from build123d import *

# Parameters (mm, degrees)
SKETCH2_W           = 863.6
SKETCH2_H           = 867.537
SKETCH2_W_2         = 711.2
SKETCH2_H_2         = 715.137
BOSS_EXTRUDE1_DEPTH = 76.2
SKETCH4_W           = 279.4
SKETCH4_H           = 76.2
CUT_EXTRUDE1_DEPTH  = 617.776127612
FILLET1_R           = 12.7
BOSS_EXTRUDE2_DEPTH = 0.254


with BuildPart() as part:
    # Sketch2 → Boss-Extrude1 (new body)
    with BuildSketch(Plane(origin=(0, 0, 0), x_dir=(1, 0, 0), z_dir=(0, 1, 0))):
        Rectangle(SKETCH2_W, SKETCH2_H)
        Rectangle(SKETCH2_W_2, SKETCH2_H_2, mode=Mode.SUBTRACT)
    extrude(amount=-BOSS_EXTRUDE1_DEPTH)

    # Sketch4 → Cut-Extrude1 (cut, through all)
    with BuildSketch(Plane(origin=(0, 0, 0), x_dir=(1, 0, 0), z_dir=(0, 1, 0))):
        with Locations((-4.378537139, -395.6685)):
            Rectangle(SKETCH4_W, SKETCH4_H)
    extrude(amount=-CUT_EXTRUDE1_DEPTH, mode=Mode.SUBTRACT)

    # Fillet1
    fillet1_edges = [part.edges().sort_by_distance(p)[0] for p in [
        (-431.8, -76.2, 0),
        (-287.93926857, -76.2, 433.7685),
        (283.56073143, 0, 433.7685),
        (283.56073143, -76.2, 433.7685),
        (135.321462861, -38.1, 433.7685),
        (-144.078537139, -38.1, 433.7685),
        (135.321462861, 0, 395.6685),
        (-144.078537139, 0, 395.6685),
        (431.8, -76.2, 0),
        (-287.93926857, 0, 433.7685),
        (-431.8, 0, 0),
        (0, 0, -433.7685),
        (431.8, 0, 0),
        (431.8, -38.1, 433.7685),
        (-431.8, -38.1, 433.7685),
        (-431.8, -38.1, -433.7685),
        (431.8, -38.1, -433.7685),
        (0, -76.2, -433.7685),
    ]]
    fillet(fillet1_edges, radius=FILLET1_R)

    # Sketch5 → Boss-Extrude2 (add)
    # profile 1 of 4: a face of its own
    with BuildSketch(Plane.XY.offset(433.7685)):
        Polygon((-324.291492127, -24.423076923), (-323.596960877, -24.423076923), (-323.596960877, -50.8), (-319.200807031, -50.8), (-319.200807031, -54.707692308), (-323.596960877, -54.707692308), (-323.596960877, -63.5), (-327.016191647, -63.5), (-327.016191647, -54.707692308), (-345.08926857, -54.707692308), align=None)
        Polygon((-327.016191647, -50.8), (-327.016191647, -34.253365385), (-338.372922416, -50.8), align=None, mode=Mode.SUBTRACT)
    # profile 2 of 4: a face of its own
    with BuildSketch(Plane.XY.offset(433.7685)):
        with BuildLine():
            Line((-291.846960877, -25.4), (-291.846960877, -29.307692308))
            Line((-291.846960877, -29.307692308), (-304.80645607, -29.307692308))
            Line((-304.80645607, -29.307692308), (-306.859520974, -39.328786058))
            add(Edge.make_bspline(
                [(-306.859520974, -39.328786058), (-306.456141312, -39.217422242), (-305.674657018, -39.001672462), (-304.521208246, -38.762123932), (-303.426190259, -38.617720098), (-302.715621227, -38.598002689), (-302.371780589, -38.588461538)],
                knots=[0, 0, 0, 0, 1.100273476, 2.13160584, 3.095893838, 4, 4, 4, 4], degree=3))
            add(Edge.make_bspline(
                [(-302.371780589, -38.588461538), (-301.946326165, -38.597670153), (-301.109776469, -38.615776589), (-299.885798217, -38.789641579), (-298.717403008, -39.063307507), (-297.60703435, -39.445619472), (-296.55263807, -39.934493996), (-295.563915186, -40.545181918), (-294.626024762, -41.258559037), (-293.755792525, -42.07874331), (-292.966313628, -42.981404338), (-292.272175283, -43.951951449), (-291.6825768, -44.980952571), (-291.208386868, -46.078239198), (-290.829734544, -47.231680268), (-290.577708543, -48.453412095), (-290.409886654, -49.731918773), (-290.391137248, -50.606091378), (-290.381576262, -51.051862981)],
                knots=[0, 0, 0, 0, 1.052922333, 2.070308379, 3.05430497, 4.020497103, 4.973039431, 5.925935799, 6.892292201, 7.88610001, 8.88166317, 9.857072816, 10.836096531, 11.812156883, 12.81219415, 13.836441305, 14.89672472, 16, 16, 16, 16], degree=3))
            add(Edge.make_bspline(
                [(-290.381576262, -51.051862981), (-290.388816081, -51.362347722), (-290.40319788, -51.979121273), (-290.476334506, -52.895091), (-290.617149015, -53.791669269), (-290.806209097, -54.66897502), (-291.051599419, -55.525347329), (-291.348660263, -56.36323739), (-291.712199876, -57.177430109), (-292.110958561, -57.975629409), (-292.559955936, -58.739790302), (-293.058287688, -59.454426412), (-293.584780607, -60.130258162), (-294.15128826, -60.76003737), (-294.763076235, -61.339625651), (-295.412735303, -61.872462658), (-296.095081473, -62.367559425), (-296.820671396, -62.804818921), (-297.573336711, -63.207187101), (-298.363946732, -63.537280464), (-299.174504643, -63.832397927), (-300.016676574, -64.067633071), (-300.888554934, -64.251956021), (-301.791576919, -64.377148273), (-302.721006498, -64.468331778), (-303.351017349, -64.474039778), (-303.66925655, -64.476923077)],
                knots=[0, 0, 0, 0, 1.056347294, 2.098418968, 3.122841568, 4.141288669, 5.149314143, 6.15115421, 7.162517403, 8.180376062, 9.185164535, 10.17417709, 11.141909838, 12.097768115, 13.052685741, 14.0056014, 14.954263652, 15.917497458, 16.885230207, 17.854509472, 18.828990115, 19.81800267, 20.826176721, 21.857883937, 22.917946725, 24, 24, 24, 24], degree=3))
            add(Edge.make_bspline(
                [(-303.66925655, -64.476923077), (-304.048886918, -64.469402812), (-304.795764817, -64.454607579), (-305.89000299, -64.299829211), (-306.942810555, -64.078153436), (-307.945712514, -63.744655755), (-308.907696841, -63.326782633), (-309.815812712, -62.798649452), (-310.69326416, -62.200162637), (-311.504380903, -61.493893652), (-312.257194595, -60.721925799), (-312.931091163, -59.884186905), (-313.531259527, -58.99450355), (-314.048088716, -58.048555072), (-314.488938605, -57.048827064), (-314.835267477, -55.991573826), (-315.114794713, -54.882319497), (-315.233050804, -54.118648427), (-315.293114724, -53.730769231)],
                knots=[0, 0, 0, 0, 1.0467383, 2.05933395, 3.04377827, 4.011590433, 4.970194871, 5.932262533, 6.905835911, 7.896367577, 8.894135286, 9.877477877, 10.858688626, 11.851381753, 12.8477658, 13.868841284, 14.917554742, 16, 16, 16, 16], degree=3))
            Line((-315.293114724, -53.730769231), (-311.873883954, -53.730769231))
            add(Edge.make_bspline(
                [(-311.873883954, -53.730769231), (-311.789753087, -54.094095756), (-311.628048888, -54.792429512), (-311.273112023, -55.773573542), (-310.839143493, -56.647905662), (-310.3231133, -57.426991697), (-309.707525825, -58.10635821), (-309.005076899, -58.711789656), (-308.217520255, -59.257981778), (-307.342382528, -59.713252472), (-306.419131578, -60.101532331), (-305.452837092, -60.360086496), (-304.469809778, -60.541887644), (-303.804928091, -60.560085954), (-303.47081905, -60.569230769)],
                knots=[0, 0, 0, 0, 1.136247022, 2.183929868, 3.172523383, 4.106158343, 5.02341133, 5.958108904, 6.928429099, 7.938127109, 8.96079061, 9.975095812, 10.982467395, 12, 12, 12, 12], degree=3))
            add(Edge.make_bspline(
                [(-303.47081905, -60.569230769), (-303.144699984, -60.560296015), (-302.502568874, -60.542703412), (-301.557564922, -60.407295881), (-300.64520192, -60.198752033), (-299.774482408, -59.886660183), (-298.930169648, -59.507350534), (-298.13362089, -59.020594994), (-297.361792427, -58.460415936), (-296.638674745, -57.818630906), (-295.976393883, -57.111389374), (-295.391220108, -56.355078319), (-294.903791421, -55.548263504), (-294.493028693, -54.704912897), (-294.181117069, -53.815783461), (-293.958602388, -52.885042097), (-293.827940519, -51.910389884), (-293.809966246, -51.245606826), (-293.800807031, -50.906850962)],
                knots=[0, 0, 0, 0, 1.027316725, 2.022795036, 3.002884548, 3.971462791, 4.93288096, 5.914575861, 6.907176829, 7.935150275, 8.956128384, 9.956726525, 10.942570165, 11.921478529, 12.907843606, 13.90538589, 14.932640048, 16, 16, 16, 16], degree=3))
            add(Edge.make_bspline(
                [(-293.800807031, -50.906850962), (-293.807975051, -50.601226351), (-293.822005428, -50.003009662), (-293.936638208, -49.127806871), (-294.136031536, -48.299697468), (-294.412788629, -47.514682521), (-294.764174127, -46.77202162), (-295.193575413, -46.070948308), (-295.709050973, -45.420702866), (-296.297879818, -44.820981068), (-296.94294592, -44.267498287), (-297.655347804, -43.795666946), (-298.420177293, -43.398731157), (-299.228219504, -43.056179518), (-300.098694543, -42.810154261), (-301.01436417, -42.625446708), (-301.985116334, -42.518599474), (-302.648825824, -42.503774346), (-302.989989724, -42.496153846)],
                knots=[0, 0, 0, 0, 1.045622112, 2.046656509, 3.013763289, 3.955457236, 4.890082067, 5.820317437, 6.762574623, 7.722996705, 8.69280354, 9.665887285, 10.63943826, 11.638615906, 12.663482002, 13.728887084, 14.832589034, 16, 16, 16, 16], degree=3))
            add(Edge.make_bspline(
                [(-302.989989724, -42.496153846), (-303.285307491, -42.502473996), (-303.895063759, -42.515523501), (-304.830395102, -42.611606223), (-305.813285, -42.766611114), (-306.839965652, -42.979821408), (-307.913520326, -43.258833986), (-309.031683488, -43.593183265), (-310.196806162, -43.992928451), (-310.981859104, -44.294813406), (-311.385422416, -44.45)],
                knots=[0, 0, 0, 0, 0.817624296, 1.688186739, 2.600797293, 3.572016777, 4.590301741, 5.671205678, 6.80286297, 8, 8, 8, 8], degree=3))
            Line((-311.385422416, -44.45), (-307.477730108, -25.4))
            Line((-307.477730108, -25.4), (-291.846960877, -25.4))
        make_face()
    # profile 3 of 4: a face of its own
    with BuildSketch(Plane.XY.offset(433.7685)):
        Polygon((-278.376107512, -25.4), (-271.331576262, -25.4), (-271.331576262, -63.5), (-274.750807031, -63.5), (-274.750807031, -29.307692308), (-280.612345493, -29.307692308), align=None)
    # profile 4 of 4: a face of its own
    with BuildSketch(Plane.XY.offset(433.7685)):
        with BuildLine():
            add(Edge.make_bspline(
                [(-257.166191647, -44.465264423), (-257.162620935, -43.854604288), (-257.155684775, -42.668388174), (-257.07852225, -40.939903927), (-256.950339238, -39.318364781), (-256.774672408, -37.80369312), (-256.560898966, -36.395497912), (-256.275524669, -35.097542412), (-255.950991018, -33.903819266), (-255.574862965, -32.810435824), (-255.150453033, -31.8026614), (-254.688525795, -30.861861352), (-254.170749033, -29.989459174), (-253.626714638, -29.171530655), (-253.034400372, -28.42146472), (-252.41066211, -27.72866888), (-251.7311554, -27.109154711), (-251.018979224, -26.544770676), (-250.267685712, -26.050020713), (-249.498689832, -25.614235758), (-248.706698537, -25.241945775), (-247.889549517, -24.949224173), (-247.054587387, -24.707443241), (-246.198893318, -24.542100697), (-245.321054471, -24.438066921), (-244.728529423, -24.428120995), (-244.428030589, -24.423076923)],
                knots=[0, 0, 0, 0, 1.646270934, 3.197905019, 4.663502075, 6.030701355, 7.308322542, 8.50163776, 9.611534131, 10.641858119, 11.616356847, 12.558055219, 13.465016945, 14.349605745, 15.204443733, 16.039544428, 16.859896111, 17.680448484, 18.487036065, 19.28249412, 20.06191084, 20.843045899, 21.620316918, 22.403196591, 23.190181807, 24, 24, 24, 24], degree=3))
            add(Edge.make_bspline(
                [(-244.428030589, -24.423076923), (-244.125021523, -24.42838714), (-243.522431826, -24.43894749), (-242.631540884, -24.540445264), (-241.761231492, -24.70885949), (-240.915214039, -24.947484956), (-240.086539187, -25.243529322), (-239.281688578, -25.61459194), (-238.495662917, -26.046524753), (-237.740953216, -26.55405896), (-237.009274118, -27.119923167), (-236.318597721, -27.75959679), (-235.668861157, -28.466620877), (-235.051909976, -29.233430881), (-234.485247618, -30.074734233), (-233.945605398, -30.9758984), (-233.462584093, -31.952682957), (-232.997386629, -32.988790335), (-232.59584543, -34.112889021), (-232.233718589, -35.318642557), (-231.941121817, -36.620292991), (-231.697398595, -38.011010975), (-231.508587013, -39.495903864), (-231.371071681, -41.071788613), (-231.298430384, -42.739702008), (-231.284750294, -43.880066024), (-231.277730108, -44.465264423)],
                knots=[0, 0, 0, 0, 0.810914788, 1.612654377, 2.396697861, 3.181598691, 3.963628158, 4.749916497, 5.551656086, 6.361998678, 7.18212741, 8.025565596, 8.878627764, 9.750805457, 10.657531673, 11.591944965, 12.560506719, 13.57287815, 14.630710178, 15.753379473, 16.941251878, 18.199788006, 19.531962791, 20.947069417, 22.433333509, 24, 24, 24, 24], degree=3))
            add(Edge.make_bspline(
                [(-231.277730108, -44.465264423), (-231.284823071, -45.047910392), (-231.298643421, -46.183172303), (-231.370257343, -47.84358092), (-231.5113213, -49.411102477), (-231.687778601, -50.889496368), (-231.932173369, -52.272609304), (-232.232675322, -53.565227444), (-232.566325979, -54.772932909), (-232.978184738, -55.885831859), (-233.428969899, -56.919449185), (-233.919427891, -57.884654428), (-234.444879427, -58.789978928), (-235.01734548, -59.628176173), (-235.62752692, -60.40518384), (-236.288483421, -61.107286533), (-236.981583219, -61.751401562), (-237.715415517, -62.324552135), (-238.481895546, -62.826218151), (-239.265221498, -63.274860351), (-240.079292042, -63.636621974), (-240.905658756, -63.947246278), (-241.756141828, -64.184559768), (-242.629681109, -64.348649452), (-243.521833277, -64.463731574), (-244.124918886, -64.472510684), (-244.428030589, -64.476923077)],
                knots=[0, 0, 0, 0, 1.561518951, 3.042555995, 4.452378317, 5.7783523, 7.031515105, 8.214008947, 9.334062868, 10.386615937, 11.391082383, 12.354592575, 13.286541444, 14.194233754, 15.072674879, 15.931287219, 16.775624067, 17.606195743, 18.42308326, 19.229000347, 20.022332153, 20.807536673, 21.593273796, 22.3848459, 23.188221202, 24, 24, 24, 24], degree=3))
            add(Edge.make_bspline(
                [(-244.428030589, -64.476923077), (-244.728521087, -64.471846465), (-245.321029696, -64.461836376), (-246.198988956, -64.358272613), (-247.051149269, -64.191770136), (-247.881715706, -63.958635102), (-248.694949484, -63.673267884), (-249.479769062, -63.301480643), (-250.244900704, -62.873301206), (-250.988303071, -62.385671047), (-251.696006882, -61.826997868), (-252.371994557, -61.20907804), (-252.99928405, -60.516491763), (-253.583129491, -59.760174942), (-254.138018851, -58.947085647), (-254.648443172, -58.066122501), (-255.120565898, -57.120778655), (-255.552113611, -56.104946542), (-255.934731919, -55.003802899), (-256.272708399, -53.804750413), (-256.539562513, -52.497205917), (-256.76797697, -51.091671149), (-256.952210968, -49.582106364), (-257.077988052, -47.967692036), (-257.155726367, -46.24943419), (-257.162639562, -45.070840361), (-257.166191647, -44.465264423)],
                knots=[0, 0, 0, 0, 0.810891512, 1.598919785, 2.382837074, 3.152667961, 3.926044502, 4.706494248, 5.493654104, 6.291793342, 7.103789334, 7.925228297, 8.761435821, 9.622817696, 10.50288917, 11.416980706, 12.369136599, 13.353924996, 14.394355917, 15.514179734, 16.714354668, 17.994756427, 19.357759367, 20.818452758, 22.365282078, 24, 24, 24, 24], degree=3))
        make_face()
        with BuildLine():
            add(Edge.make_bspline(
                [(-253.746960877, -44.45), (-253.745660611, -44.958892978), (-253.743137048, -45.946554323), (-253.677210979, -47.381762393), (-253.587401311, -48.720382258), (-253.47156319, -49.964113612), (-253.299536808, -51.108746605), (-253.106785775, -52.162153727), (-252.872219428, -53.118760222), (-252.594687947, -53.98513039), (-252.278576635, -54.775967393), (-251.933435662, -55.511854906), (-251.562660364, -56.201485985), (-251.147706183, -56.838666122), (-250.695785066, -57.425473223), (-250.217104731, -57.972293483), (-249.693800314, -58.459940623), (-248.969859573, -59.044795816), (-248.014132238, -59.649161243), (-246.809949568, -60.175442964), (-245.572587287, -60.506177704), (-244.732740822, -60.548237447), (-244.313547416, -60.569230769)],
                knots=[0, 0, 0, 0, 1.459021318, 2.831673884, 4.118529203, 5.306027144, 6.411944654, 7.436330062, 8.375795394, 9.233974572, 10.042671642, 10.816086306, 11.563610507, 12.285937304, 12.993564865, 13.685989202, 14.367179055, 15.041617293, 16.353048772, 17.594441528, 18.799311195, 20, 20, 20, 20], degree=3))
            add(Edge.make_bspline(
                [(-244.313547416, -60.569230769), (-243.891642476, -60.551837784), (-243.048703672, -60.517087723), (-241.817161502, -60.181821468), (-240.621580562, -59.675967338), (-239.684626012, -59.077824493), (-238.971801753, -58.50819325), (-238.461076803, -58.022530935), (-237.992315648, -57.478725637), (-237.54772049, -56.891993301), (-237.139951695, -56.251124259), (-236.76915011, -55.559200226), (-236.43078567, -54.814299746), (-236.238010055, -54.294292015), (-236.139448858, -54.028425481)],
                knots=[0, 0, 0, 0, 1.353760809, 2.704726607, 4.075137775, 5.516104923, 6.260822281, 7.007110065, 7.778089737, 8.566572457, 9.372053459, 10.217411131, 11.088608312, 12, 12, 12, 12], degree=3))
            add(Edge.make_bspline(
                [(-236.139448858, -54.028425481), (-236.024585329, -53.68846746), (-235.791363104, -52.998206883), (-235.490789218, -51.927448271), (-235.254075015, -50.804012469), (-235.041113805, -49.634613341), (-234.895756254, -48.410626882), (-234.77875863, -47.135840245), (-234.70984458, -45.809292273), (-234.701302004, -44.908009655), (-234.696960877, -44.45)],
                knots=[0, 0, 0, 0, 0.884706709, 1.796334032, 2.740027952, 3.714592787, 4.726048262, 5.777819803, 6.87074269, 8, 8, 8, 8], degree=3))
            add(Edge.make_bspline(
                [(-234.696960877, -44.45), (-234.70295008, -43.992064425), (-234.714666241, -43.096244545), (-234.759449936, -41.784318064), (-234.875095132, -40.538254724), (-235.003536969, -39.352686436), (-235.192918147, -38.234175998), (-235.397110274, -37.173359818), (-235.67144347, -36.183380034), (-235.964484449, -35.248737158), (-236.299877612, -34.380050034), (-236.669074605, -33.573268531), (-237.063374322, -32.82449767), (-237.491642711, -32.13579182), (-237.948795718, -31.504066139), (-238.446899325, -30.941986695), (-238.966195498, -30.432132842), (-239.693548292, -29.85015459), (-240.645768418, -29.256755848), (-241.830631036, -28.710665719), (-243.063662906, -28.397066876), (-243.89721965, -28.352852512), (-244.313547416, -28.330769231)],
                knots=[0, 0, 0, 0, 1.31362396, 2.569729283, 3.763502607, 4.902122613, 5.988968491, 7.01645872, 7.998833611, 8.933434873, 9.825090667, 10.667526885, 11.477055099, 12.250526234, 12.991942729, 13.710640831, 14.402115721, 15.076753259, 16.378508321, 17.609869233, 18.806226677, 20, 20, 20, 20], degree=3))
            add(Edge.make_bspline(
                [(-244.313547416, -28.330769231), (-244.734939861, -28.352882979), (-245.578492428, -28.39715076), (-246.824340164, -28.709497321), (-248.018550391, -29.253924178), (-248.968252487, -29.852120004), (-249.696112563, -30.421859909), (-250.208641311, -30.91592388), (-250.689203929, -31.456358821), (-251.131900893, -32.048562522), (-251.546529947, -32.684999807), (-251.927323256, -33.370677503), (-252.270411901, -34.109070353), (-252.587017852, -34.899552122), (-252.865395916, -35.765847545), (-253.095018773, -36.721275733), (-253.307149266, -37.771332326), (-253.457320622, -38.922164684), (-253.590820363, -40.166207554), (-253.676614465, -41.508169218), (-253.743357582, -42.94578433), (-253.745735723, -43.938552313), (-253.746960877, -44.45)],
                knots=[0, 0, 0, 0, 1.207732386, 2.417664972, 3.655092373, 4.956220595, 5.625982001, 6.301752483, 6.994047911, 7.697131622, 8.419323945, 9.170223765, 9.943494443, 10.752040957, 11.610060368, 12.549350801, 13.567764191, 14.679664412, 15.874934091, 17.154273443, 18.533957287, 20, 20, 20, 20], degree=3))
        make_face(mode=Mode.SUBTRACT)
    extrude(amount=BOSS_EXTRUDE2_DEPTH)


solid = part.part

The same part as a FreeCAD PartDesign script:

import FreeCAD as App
import Part
import Sketcher

V = App.Vector
Q = App.Units.Quantity


def edges_at(feature, points):
    """Names of the edges that pass closest to the given points."""
    edges = feature.Shape.Edges
    near = lambda p: min(range(len(edges)), key=lambda i: edges[i].distToShape(Part.Vertex(*p))[0])
    return sorted({f"Edge{near(p) + 1}" for p in points})

doc = App.newDocument("Part")
body = doc.addObject("PartDesign::Body", "Body")

sketch1 = body.newObject("Sketcher::SketchObject", "Sketch")
sketch1.AttachmentSupport = (doc.getObject("XZ_Plane"), [""])
sketch1.MapMode = "FlatFace"
sketch1.addGeometry([
    Part.LineSegment(V(-431.8, -433.7685, 0), V(-431.8, 433.7685, 0)),
    Part.LineSegment(V(-431.8, 433.7685, 0), V(431.8, 433.7685, 0)),
    Part.LineSegment(V(431.8, 433.7685, 0), V(431.8, -433.7685, 0)),
    Part.LineSegment(V(431.8, -433.7685, 0), V(-431.8, -433.7685, 0)),
    Part.LineSegment(V(355.6, 357.5685, 0), V(-355.6, 357.5685, 0)),
    Part.LineSegment(V(-355.6, 357.5685, 0), V(-355.6, -357.5685, 0)),
    Part.LineSegment(V(-355.6, -357.5685, 0), V(355.6, -357.5685, 0)),
    Part.LineSegment(V(355.6, -357.5685, 0), V(355.6, 357.5685, 0)),
], False)
sketch1.addConstraint([
    Sketcher.Constraint("Coincident", 0, 2, 1, 1),
    Sketcher.Constraint("Coincident", 1, 2, 2, 1),
    Sketcher.Constraint("Coincident", 2, 2, 3, 1),
    Sketcher.Constraint("Coincident", 3, 2, 0, 1),
    Sketcher.Constraint("Coincident", 4, 2, 5, 1),
    Sketcher.Constraint("Coincident", 5, 2, 6, 1),
    Sketcher.Constraint("Coincident", 6, 2, 7, 1),
    Sketcher.Constraint("Coincident", 7, 2, 4, 1),
    Sketcher.Constraint("Vertical", 0),
    Sketcher.Constraint("Horizontal", 1),
    Sketcher.Constraint("Vertical", 2),
    Sketcher.Constraint("Horizontal", 3),
    Sketcher.Constraint("Horizontal", 4),
    Sketcher.Constraint("Vertical", 5),
    Sketcher.Constraint("Horizontal", 6),
    Sketcher.Constraint("Vertical", 7),
    Sketcher.Constraint("Symmetric", 0, 2, 2, 2, -1, 1),
    Sketcher.Constraint("Symmetric", 4, 2, 6, 2, -1, 1),
    Sketcher.Constraint("DistanceX", 1, 1, 1, 2, Q("34 in")),
    Sketcher.Constraint("DistanceX", 4, 2, 4, 1, Q("28 in")),
    Sketcher.Constraint("DistanceY", 4, 2, 0, 2, Q("3 in")),
    Sketcher.Constraint("DistanceY", 0, 1, 0, 2, Q("34.155 in")),
])
pad1 = body.newObject("PartDesign::Pad", "Pad")
pad1.Profile = sketch1
pad1.Length = Q("3 in")

sketch2 = body.newObject("Sketcher::SketchObject", "Sketch001")
sketch2.AttachmentSupport = (doc.getObject("XZ_Plane"), [""])
sketch2.MapMode = "FlatFace"
sketch2.addGeometry([
    Part.LineSegment(V(-144.078537, 357.5685, 0), V(-144.078537, 433.7685, 0)),
    Part.LineSegment(V(-144.078537, 433.7685, 0), V(135.321463, 433.7685, 0)),
    Part.LineSegment(V(135.321463, 433.7685, 0), V(135.321463, 357.5685, 0)),
    Part.LineSegment(V(135.321463, 357.5685, 0), V(-144.078537, 357.5685, 0)),
], False)
sketch2.addConstraint([
    Sketcher.Constraint("Coincident", 0, 2, 1, 1),
    Sketcher.Constraint("Coincident", 1, 2, 2, 1),
    Sketcher.Constraint("Coincident", 2, 2, 3, 1),
    Sketcher.Constraint("Coincident", 3, 2, 0, 1),
    Sketcher.Constraint("Vertical", 0),
    Sketcher.Constraint("Horizontal", 1),
    Sketcher.Constraint("Vertical", 2),
    Sketcher.Constraint("Horizontal", 3),
    Sketcher.Constraint("DistanceX", 1, 1, 1, 2, Q("11 in")),
    Sketcher.Constraint("DistanceY", 0, 1, 0, 2, Q("3 in")),
    Sketcher.Constraint("DistanceY", -1, 1, 0, 2, Q("17.0775 in")),
    Sketcher.Constraint("DistanceX", 0, 2, -1, 1, Q("144.078537 mm")),
])
pocket1 = body.newObject("PartDesign::Pocket", "Pocket")
pocket1.Profile = sketch2
pocket1.Type = "ThroughAll"
pocket1.Reversed = True
doc.recompute()

fillet = body.newObject("PartDesign::Fillet", "Fillet")
fillet.Base = (pocket1, edges_at(pocket1, [
    (-431.8, -76.2, 0),
    (-287.939, -76.2, 433.769),
    (283.561, 0, 433.769),
    (283.561, -76.2, 433.769),
    (135.321, -38.1, 433.769),
    (-144.079, -38.1, 433.769),
    (135.321, 0, 395.668),
    (-144.079, 0, 395.668),
    (431.8, -76.2, 0),
    (-287.939, 0, 433.769),
    (-431.8, 0, 0),
    (0, 0, -433.769),
    (431.8, 0, 0),
    (431.8, -38.1, 433.769),
    (-431.8, -38.1, 433.769),
    (-431.8, -38.1, -433.769),
    (431.8, -38.1, -433.769),
    (0, -76.2, -433.769),
]))
fillet.Radius = Q("0.5 in")

sketch3 = body.newObject("Sketcher::SketchObject", "Sketch002")
sketch3.AttachmentSupport = (doc.getObject("XY_Plane"), [""])
sketch3.MapMode = "FlatFace"
sketch3.AttachmentOffset = App.Placement(V(0, 0, 17.0775 * 25.4), App.Rotation())
sketch3.addGeometry([
    Part.LineSegment(V(-323.596961, -24.423077, 0), V(-324.291492, -24.423077, 0)),
    Part.LineSegment(V(-324.291492, -24.423077, 0), V(-345.089269, -54.707692, 0)),
    Part.LineSegment(V(-345.089269, -54.707692, 0), V(-327.016192, -54.707692, 0)),
    Part.LineSegment(V(-327.016192, -54.707692, 0), V(-327.016192, -63.5, 0)),
    Part.LineSegment(V(-327.016192, -63.5, 0), V(-323.596961, -63.5, 0)),
    Part.LineSegment(V(-323.596961, -63.5, 0), V(-323.596961, -54.707692, 0)),
    Part.LineSegment(V(-323.596961, -54.707692, 0), V(-319.200807, -54.707692, 0)),
    Part.LineSegment(V(-319.200807, -54.707692, 0), V(-319.200807, -50.8, 0)),
    Part.LineSegment(V(-319.200807, -50.8, 0), V(-323.596961, -50.8, 0)),
    Part.LineSegment(V(-323.596961, -50.8, 0), V(-323.596961, -24.423077, 0)),
    Part.LineSegment(V(-327.016192, -50.8, 0), V(-338.372922, -50.8, 0)),
    Part.LineSegment(V(-338.372922, -50.8, 0), V(-327.016192, -34.253365, 0)),
    Part.LineSegment(V(-327.016192, -34.253365, 0), V(-327.016192, -50.8, 0)),
    Part.LineSegment(V(-291.846961, -29.307692, 0), V(-291.846961, -25.4, 0)),
    Part.LineSegment(V(-291.846961, -25.4, 0), V(-307.47773, -25.4, 0)),
    Part.LineSegment(V(-307.47773, -25.4, 0), V(-311.385422, -44.45, 0)),
    Part.BSplineCurve([V(-302.98999, -42.496154, 0), V(-303.285307, -42.502474, 0), V(-303.895064, -42.515524, 0), V(-304.830395, -42.611606, 0), V(-305.813285, -42.766611, 0), V(-306.839966, -42.979821, 0), V(-307.91352, -43.258834, 0), V(-309.031683, -43.593183, 0), V(-310.196806, -43.992928, 0), V(-310.981859, -44.294813, 0), V(-311.385422, -44.45, 0)], [4, 1, 1, 1, 1, 1, 1, 1, 4], [0, 0.817624296, 1.688186739, 2.600797293, 3.572016777, 4.590301741, 5.671205678, 6.80286297, 8], False, 3, [1, 1, 1, 1, 1, 1, 1, 1, 1, 1, 1], False),
    Part.BSplineCurve([V(-293.800807, -50.906851, 0), V(-293.807975, -50.601226, 0), V(-293.822005, -50.00301, 0), V(-293.936638, -49.127807, 0), V(-294.136032, -48.299697, 0), V(-294.412789, -47.514683, 0), V(-294.764174, -46.772022, 0), V(-295.193575, -46.070948, 0), V(-295.709051, -45.420703, 0), V(-296.29788, -44.820981, 0), V(-296.942946, -44.267498, 0), V(-297.655348, -43.795667, 0), V(-298.420177, -43.398731, 0), V(-299.22822, -43.05618, 0), V(-300.098695, -42.810154, 0), V(-301.014364, -42.625447, 0), V(-301.985116, -42.518599, 0), V(-302.648826, -42.503774, 0), V(-302.98999, -42.496154, 0)], [4, 1, 1, 1, 1, 1, 1, 1, 1, 1, 1, 1, 1, 1, 1, 1, 4], [0, 1.045622112, 2.046656509, 3.013763289, 3.955457236, 4.890082067, 5.820317437, 6.762574623, 7.722996705, 8.69280354, 9.665887285, 10.63943826, 11.638615906, 12.663482002, 13.728887084, 14.832589034, 16], False, 3, [1, 1, 1, 1, 1, 1, 1, 1, 1, 1, 1, 1, 1, 1, 1, 1, 1, 1, 1], False),
    Part.BSplineCurve([V(-303.470819, -60.569231, 0), V(-303.1447, -60.560296, 0), V(-302.502569, -60.542703, 0), V(-301.557565, -60.407296, 0), V(-300.645202, -60.198752, 0), V(-299.774482, -59.88666, 0), V(-298.93017, -59.507351, 0), V(-298.133621, -59.020595, 0), V(-297.361792, -58.460416, 0), V(-296.638675, -57.818631, 0), V(-295.976394, -57.111389, 0), V(-295.39122, -56.355078, 0), V(-294.903791, -55.548264, 0), V(-294.493029, -54.704913, 0), V(-294.181117, -53.815783, 0), V(-293.958602, -52.885042, 0), V(-293.827941, -51.91039, 0), V(-293.809966, -51.245607, 0), V(-293.800807, -50.906851, 0)], [4, 1, 1, 1, 1, 1, 1, 1, 1, 1, 1, 1, 1, 1, 1, 1, 4], [0, 1.027316725, 2.022795036, 3.002884548, 3.971462791, 4.93288096, 5.914575861, 6.907176829, 7.935150275, 8.956128384, 9.956726525, 10.942570165, 11.921478529, 12.907843606, 13.90538589, 14.932640048, 16], False, 3, [1, 1, 1, 1, 1, 1, 1, 1, 1, 1, 1, 1, 1, 1, 1, 1, 1, 1, 1], False),
    Part.BSplineCurve([V(-311.873884, -53.730769, 0), V(-311.789753, -54.094096, 0), V(-311.628049, -54.79243, 0), V(-311.273112, -55.773574, 0), V(-310.839143, -56.647906, 0), V(-310.323113, -57.426992, 0), V(-309.707526, -58.106358, 0), V(-309.005077, -58.71179, 0), V(-308.21752, -59.257982, 0), V(-307.342383, -59.713252, 0), V(-306.419132, -60.101532, 0), V(-305.452837, -60.360086, 0), V(-304.46981, -60.541888, 0), V(-303.804928, -60.560086, 0), V(-303.470819, -60.569231, 0)], [4, 1, 1, 1, 1, 1, 1, 1, 1, 1, 1, 1, 4], [0, 1.136247022, 2.183929868, 3.172523383, 4.106158343, 5.02341133, 5.958108904, 6.928429099, 7.938127109, 8.96079061, 9.975095812, 10.982467395, 12], False, 3, [1, 1, 1, 1, 1, 1, 1, 1, 1, 1, 1, 1, 1, 1, 1], False),
    Part.LineSegment(V(-311.873884, -53.730769, 0), V(-315.293115, -53.730769, 0)),
    Part.BSplineCurve([V(-303.669257, -64.476923, 0), V(-304.048887, -64.469403, 0), V(-304.795765, -64.454608, 0), V(-305.890003, -64.299829, 0), V(-306.942811, -64.078153, 0), V(-307.945713, -63.744656, 0), V(-308.907697, -63.326783, 0), V(-309.815813, -62.798649, 0), V(-310.693264, -62.200163, 0), V(-311.504381, -61.493894, 0), V(-312.257195, -60.721926, 0), V(-312.931091, -59.884187, 0), V(-313.53126, -58.994504, 0), V(-314.048089, -58.048555, 0), V(-314.488939, -57.048827, 0), V(-314.835267, -55.991574, 0), V(-315.114795, -54.882319, 0), V(-315.233051, -54.118648, 0), V(-315.293115, -53.730769, 0)], [4, 1, 1, 1, 1, 1, 1, 1, 1, 1, 1, 1, 1, 1, 1, 1, 4], [0, 1.0467383, 2.05933395, 3.04377827, 4.011590433, 4.970194871, 5.932262533, 6.905835911, 7.896367577, 8.894135286, 9.877477877, 10.858688626, 11.851381753, 12.8477658, 13.868841284, 14.917554742, 16], False, 3, [1, 1, 1, 1, 1, 1, 1, 1, 1, 1, 1, 1, 1, 1, 1, 1, 1, 1, 1], False),
    Part.BSplineCurve([V(-290.381576, -51.051863, 0), V(-290.388816, -51.362348, 0), V(-290.403198, -51.979121, 0), V(-290.476335, -52.895091, 0), V(-290.617149, -53.791669, 0), V(-290.806209, -54.668975, 0), V(-291.051599, -55.525347, 0), V(-291.34866, -56.363237, 0), V(-291.7122, -57.17743, 0), V(-292.110959, -57.975629, 0), V(-292.559956, -58.73979, 0), V(-293.058288, -59.454426, 0), V(-293.584781, -60.130258, 0), V(-294.151288, -60.760037, 0), V(-294.763076, -61.339626, 0), V(-295.412735, -61.872463, 0), V(-296.095081, -62.367559, 0), V(-296.820671, -62.804819, 0), V(-297.573337, -63.207187, 0), V(-298.363947, -63.53728, 0), V(-299.174505, -63.832398, 0), V(-300.016677, -64.067633, 0), V(-300.888555, -64.251956, 0), V(-301.791577, -64.377148, 0), V(-302.721006, -64.468332, 0), V(-303.351017, -64.47404, 0), V(-303.669257, -64.476923, 0)], [4, 1, 1, 1, 1, 1, 1, 1, 1, 1, 1, 1, 1, 1, 1, 1, 1, 1, 1, 1, 1, 1, 1, 1, 4], [0, 1.056347294, 2.098418968, 3.122841568, 4.141288669, 5.149314143, 6.15115421, 7.162517403, 8.180376062, 9.185164535, 10.17417709, 11.141909838, 12.097768115, 13.052685741, 14.0056014, 14.954263652, 15.917497458, 16.885230207, 17.854509472, 18.828990115, 19.81800267, 20.826176721, 21.857883937, 22.917946725, 24], False, 3, [1, 1, 1, 1, 1, 1, 1, 1, 1, 1, 1, 1, 1, 1, 1, 1, 1, 1, 1, 1, 1, 1, 1, 1, 1, 1, 1], False),
    Part.BSplineCurve([V(-302.371781, -38.588462, 0), V(-301.946326, -38.59767, 0), V(-301.109776, -38.615777, 0), V(-299.885798, -38.789642, 0), V(-298.717403, -39.063308, 0), V(-297.607034, -39.445619, 0), V(-296.552638, -39.934494, 0), V(-295.563915, -40.545182, 0), V(-294.626025, -41.258559, 0), V(-293.755793, -42.078743, 0), V(-292.966314, -42.981404, 0), V(-292.272175, -43.951951, 0), V(-291.682577, -44.980953, 0), V(-291.208387, -46.078239, 0), V(-290.829735, -47.23168, 0), V(-290.577709, -48.453412, 0), V(-290.409887, -49.731919, 0), V(-290.391137, -50.606091, 0), V(-290.381576, -51.051863, 0)], [4, 1, 1, 1, 1, 1, 1, 1, 1, 1, 1, 1, 1, 1, 1, 1, 4], [0, 1.052922333, 2.070308379, 3.05430497, 4.020497103, 4.973039431, 5.925935799, 6.892292201, 7.88610001, 8.88166317, 9.857072816, 10.836096531, 11.812156883, 12.81219415, 13.836441305, 14.89672472, 16], False, 3, [1, 1, 1, 1, 1, 1, 1, 1, 1, 1, 1, 1, 1, 1, 1, 1, 1, 1, 1], False),
    Part.BSplineCurve([V(-306.859521, -39.328786, 0), V(-306.456141, -39.217422, 0), V(-305.674657, -39.001672, 0), V(-304.521208, -38.762124, 0), V(-303.42619, -38.61772, 0), V(-302.715621, -38.598003, 0), V(-302.371781, -38.588462, 0)], [4, 1, 1, 1, 4], [0, 1.100273476, 2.13160584, 3.095893838, 4], False, 3, [1, 1, 1, 1, 1, 1, 1], False),
    Part.LineSegment(V(-306.859521, -39.328786, 0), V(-304.806456, -29.307692, 0)),
    Part.LineSegment(V(-304.806456, -29.307692, 0), V(-291.846961, -29.307692, 0)),
    Part.LineSegment(V(-271.331576, -25.4, 0), V(-278.376108, -25.4, 0)),
    Part.LineSegment(V(-278.376108, -25.4, 0), V(-280.612345, -29.307692, 0)),
    Part.LineSegment(V(-280.612345, -29.307692, 0), V(-274.750807, -29.307692, 0)),
    Part.LineSegment(V(-274.750807, -29.307692, 0), V(-274.750807, -63.5, 0)),
    Part.LineSegment(V(-274.750807, -63.5, 0), V(-271.331576, -63.5, 0)),
    Part.LineSegment(V(-271.331576, -63.5, 0), V(-271.331576, -25.4, 0)),
    Part.BSplineCurve([V(-257.166192, -44.465264, 0), V(-257.162621, -43.854604, 0), V(-257.155685, -42.668388, 0), V(-257.078522, -40.939904, 0), V(-256.950339, -39.318365, 0), V(-256.774672, -37.803693, 0), V(-256.560899, -36.395498, 0), V(-256.275525, -35.097542, 0), V(-255.950991, -33.903819, 0), V(-255.574863, -32.810436, 0), V(-255.150453, -31.802661, 0), V(-254.688526, -30.861861, 0), V(-254.170749, -29.989459, 0), V(-253.626715, -29.171531, 0), V(-253.0344, -28.421465, 0), V(-252.410662, -27.728669, 0), V(-251.731155, -27.109155, 0), V(-251.018979, -26.544771, 0), V(-250.267686, -26.050021, 0), V(-249.49869, -25.614236, 0), V(-248.706699, -25.241946, 0), V(-247.88955, -24.949224, 0), V(-247.054587, -24.707443, 0), V(-246.198893, -24.542101, 0), V(-245.321054, -24.438067, 0), V(-244.728529, -24.428121, 0), V(-244.428031, -24.423077, 0)], [4, 1, 1, 1, 1, 1, 1, 1, 1, 1, 1, 1, 1, 1, 1, 1, 1, 1, 1, 1, 1, 1, 1, 1, 4], [0, 1.646270934, 3.197905019, 4.663502075, 6.030701355, 7.308322542, 8.50163776, 9.611534131, 10.641858119, 11.616356847, 12.558055219, 13.465016945, 14.349605745, 15.204443733, 16.039544428, 16.859896111, 17.680448484, 18.487036065, 19.28249412, 20.06191084, 20.843045899, 21.620316918, 22.403196591, 23.190181807, 24], False, 3, [1, 1, 1, 1, 1, 1, 1, 1, 1, 1, 1, 1, 1, 1, 1, 1, 1, 1, 1, 1, 1, 1, 1, 1, 1, 1, 1], False),
    Part.BSplineCurve([V(-244.428031, -64.476923, 0), V(-244.728521, -64.471846, 0), V(-245.32103, -64.461836, 0), V(-246.198989, -64.358273, 0), V(-247.051149, -64.19177, 0), V(-247.881716, -63.958635, 0), V(-248.694949, -63.673268, 0), V(-249.479769, -63.301481, 0), V(-250.244901, -62.873301, 0), V(-250.988303, -62.385671, 0), V(-251.696007, -61.826998, 0), V(-252.371995, -61.209078, 0), V(-252.999284, -60.516492, 0), V(-253.583129, -59.760175, 0), V(-254.138019, -58.947086, 0), V(-254.648443, -58.066123, 0), V(-255.120566, -57.120779, 0), V(-255.552114, -56.104947, 0), V(-255.934732, -55.003803, 0), V(-256.272708, -53.80475, 0), V(-256.539563, -52.497206, 0), V(-256.767977, -51.091671, 0), V(-256.952211, -49.582106, 0), V(-257.077988, -47.967692, 0), V(-257.155726, -46.249434, 0), V(-257.16264, -45.07084, 0), V(-257.166192, -44.465264, 0)], [4, 1, 1, 1, 1, 1, 1, 1, 1, 1, 1, 1, 1, 1, 1, 1, 1, 1, 1, 1, 1, 1, 1, 1, 4], [0, 0.810891512, 1.598919785, 2.382837074, 3.152667961, 3.926044502, 4.706494248, 5.493654104, 6.291793342, 7.103789334, 7.925228297, 8.761435821, 9.622817696, 10.50288917, 11.416980706, 12.369136599, 13.353924996, 14.394355917, 15.514179734, 16.714354668, 17.994756427, 19.357759367, 20.818452758, 22.365282078, 24], False, 3, [1, 1, 1, 1, 1, 1, 1, 1, 1, 1, 1, 1, 1, 1, 1, 1, 1, 1, 1, 1, 1, 1, 1, 1, 1, 1, 1], False),
    Part.BSplineCurve([V(-231.27773, -44.465264, 0), V(-231.284823, -45.04791, 0), V(-231.298643, -46.183172, 0), V(-231.370257, -47.843581, 0), V(-231.511321, -49.411102, 0), V(-231.687779, -50.889496, 0), V(-231.932173, -52.272609, 0), V(-232.232675, -53.565227, 0), V(-232.566326, -54.772933, 0), V(-232.978185, -55.885832, 0), V(-233.42897, -56.919449, 0), V(-233.919428, -57.884654, 0), V(-234.444879, -58.789979, 0), V(-235.017345, -59.628176, 0), V(-235.627527, -60.405184, 0), V(-236.288483, -61.107287, 0), V(-236.981583, -61.751402, 0), V(-237.715416, -62.324552, 0), V(-238.481896, -62.826218, 0), V(-239.265221, -63.27486, 0), V(-240.079292, -63.636622, 0), V(-240.905659, -63.947246, 0), V(-241.756142, -64.18456, 0), V(-242.629681, -64.348649, 0), V(-243.521833, -64.463732, 0), V(-244.124919, -64.472511, 0), V(-244.428031, -64.476923, 0)], [4, 1, 1, 1, 1, 1, 1, 1, 1, 1, 1, 1, 1, 1, 1, 1, 1, 1, 1, 1, 1, 1, 1, 1, 4], [0, 1.561518951, 3.042555995, 4.452378317, 5.7783523, 7.031515105, 8.214008947, 9.334062868, 10.386615937, 11.391082383, 12.354592575, 13.286541444, 14.194233754, 15.072674879, 15.931287219, 16.775624067, 17.606195743, 18.42308326, 19.229000347, 20.022332153, 20.807536673, 21.593273796, 22.3848459, 23.188221202, 24], False, 3, [1, 1, 1, 1, 1, 1, 1, 1, 1, 1, 1, 1, 1, 1, 1, 1, 1, 1, 1, 1, 1, 1, 1, 1, 1, 1, 1], False),
    Part.BSplineCurve([V(-244.428031, -24.423077, 0), V(-244.125022, -24.428387, 0), V(-243.522432, -24.438947, 0), V(-242.631541, -24.540445, 0), V(-241.761231, -24.708859, 0), V(-240.915214, -24.947485, 0), V(-240.086539, -25.243529, 0), V(-239.281689, -25.614592, 0), V(-238.495663, -26.046525, 0), V(-237.740953, -26.554059, 0), V(-237.009274, -27.119923, 0), V(-236.318598, -27.759597, 0), V(-235.668861, -28.466621, 0), V(-235.05191, -29.233431, 0), V(-234.485248, -30.074734, 0), V(-233.945605, -30.975898, 0), V(-233.462584, -31.952683, 0), V(-232.997387, -32.98879, 0), V(-232.595845, -34.112889, 0), V(-232.233719, -35.318643, 0), V(-231.941122, -36.620293, 0), V(-231.697399, -38.011011, 0), V(-231.508587, -39.495904, 0), V(-231.371072, -41.071789, 0), V(-231.29843, -42.739702, 0), V(-231.28475, -43.880066, 0), V(-231.27773, -44.465264, 0)], [4, 1, 1, 1, 1, 1, 1, 1, 1, 1, 1, 1, 1, 1, 1, 1, 1, 1, 1, 1, 1, 1, 1, 1, 4], [0, 0.810914788, 1.612654377, 2.396697861, 3.181598691, 3.963628158, 4.749916497, 5.551656086, 6.361998678, 7.18212741, 8.025565596, 8.878627764, 9.750805457, 10.657531673, 11.591944965, 12.560506719, 13.57287815, 14.630710178, 15.753379473, 16.941251878, 18.199788006, 19.531962791, 20.947069417, 22.433333509, 24], False, 3, [1, 1, 1, 1, 1, 1, 1, 1, 1, 1, 1, 1, 1, 1, 1, 1, 1, 1, 1, 1, 1, 1, 1, 1, 1, 1, 1], False),
    Part.BSplineCurve([V(-244.313547, -28.330769, 0), V(-244.73494, -28.352883, 0), V(-245.578492, -28.397151, 0), V(-246.82434, -28.709497, 0), V(-248.01855, -29.253924, 0), V(-248.968252, -29.85212, 0), V(-249.696113, -30.42186, 0), V(-250.208641, -30.915924, 0), V(-250.689204, -31.456359, 0), V(-251.131901, -32.048563, 0), V(-251.54653, -32.685, 0), V(-251.927323, -33.370678, 0), V(-252.270412, -34.10907, 0), V(-252.587018, -34.899552, 0), V(-252.865396, -35.765848, 0), V(-253.095019, -36.721276, 0), V(-253.307149, -37.771332, 0), V(-253.457321, -38.922165, 0), V(-253.59082, -40.166208, 0), V(-253.676614, -41.508169, 0), V(-253.743358, -42.945784, 0), V(-253.745736, -43.938552, 0), V(-253.746961, -44.45, 0)], [4, 1, 1, 1, 1, 1, 1, 1, 1, 1, 1, 1, 1, 1, 1, 1, 1, 1, 1, 1, 4], [0, 1.207732386, 2.417664972, 3.655092373, 4.956220595, 5.625982001, 6.301752483, 6.994047911, 7.697131622, 8.419323945, 9.170223765, 9.943494443, 10.752040957, 11.610060368, 12.549350801, 13.567764191, 14.679664412, 15.874934091, 17.154273443, 18.533957287, 20], False, 3, [1, 1, 1, 1, 1, 1, 1, 1, 1, 1, 1, 1, 1, 1, 1, 1, 1, 1, 1, 1, 1, 1, 1], False),
    Part.BSplineCurve([V(-234.696961, -44.45, 0), V(-234.70295, -43.992064, 0), V(-234.714666, -43.096245, 0), V(-234.75945, -41.784318, 0), V(-234.875095, -40.538255, 0), V(-235.003537, -39.352686, 0), V(-235.192918, -38.234176, 0), V(-235.39711, -37.17336, 0), V(-235.671443, -36.18338, 0), V(-235.964484, -35.248737, 0), V(-236.299878, -34.38005, 0), V(-236.669075, -33.573269, 0), V(-237.063374, -32.824498, 0), V(-237.491643, -32.135792, 0), V(-237.948796, -31.504066, 0), V(-238.446899, -30.941987, 0), V(-238.966195, -30.432133, 0), V(-239.693548, -29.850155, 0), V(-240.645768, -29.256756, 0), V(-241.830631, -28.710666, 0), V(-243.063663, -28.397067, 0), V(-243.89722, -28.352853, 0), V(-244.313547, -28.330769, 0)], [4, 1, 1, 1, 1, 1, 1, 1, 1, 1, 1, 1, 1, 1, 1, 1, 1, 1, 1, 1, 4], [0, 1.31362396, 2.569729283, 3.763502607, 4.902122613, 5.988968491, 7.01645872, 7.998833611, 8.933434873, 9.825090667, 10.667526885, 11.477055099, 12.250526234, 12.991942729, 13.710640831, 14.402115721, 15.076753259, 16.378508321, 17.609869233, 18.806226677, 20], False, 3, [1, 1, 1, 1, 1, 1, 1, 1, 1, 1, 1, 1, 1, 1, 1, 1, 1, 1, 1, 1, 1, 1, 1], False),
    Part.BSplineCurve([V(-236.139449, -54.028425, 0), V(-236.024585, -53.688467, 0), V(-235.791363, -52.998207, 0), V(-235.490789, -51.927448, 0), V(-235.254075, -50.804012, 0), V(-235.041114, -49.634613, 0), V(-234.895756, -48.410627, 0), V(-234.778759, -47.13584, 0), V(-234.709845, -45.809292, 0), V(-234.701302, -44.90801, 0), V(-234.696961, -44.45, 0)], [4, 1, 1, 1, 1, 1, 1, 1, 4], [0, 0.884706709, 1.796334032, 2.740027952, 3.714592787, 4.726048262, 5.777819803, 6.87074269, 8], False, 3, [1, 1, 1, 1, 1, 1, 1, 1, 1, 1, 1], False),
    Part.BSplineCurve([V(-244.313547, -60.569231, 0), V(-243.891642, -60.551838, 0), V(-243.048704, -60.517088, 0), V(-241.817162, -60.181821, 0), V(-240.621581, -59.675967, 0), V(-239.684626, -59.077824, 0), V(-238.971802, -58.508193, 0), V(-238.461077, -58.022531, 0), V(-237.992316, -57.478726, 0), V(-237.54772, -56.891993, 0), V(-237.139952, -56.251124, 0), V(-236.76915, -55.5592, 0), V(-236.430786, -54.8143, 0), V(-236.23801, -54.294292, 0), V(-236.139449, -54.028425, 0)], [4, 1, 1, 1, 1, 1, 1, 1, 1, 1, 1, 1, 4], [0, 1.353760809, 2.704726607, 4.075137775, 5.516104923, 6.260822281, 7.007110065, 7.778089737, 8.566572457, 9.372053459, 10.217411131, 11.088608312, 12], False, 3, [1, 1, 1, 1, 1, 1, 1, 1, 1, 1, 1, 1, 1, 1, 1], False),
    Part.BSplineCurve([V(-253.746961, -44.45, 0), V(-253.745661, -44.958893, 0), V(-253.743137, -45.946554, 0), V(-253.677211, -47.381762, 0), V(-253.587401, -48.720382, 0), V(-253.471563, -49.964114, 0), V(-253.299537, -51.108747, 0), V(-253.106786, -52.162154, 0), V(-252.872219, -53.11876, 0), V(-252.594688, -53.98513, 0), V(-252.278577, -54.775967, 0), V(-251.933436, -55.511855, 0), V(-251.56266, -56.201486, 0), V(-251.147706, -56.838666, 0), V(-250.695785, -57.425473, 0), V(-250.217105, -57.972293, 0), V(-249.6938, -58.459941, 0), V(-248.96986, -59.044796, 0), V(-248.014132, -59.649161, 0), V(-246.80995, -60.175443, 0), V(-245.572587, -60.506178, 0), V(-244.732741, -60.548237, 0), V(-244.313547, -60.569231, 0)], [4, 1, 1, 1, 1, 1, 1, 1, 1, 1, 1, 1, 1, 1, 1, 1, 1, 1, 1, 1, 4], [0, 1.459021318, 2.831673884, 4.118529203, 5.306027144, 6.411944654, 7.436330062, 8.375795394, 9.233974572, 10.042671642, 10.816086306, 11.563610507, 12.285937304, 12.993564865, 13.685989202, 14.367179055, 15.041617293, 16.353048772, 17.594441528, 18.799311195, 20], False, 3, [1, 1, 1, 1, 1, 1, 1, 1, 1, 1, 1, 1, 1, 1, 1, 1, 1, 1, 1, 1, 1, 1, 1], False),
], False)
sketch3.addConstraint([
    Sketcher.Constraint("Block", 16),
    Sketcher.Constraint("Block", 17),
    Sketcher.Constraint("Block", 18),
    Sketcher.Constraint("Block", 19),
    Sketcher.Constraint("Block", 21),
    Sketcher.Constraint("Block", 22),
    Sketcher.Constraint("Block", 23),
    Sketcher.Constraint("Block", 24),
    Sketcher.Constraint("Block", 33),
    Sketcher.Constraint("Block", 34),
    Sketcher.Constraint("Block", 35),
    Sketcher.Constraint("Block", 36),
    Sketcher.Constraint("Block", 37),
    Sketcher.Constraint("Block", 38),
    Sketcher.Constraint("Block", 39),
    Sketcher.Constraint("Block", 40),
    Sketcher.Constraint("Block", 41),
    Sketcher.Constraint("Coincident", 0, 2, 1, 1),
    Sketcher.Constraint("Coincident", 1, 2, 2, 1),
    Sketcher.Constraint("Coincident", 2, 2, 3, 1),
    Sketcher.Constraint("Coincident", 3, 2, 4, 1),
    Sketcher.Constraint("Coincident", 4, 2, 5, 1),
    Sketcher.Constraint("Coincident", 5, 2, 6, 1),
    Sketcher.Constraint("Coincident", 6, 2, 7, 1),
    Sketcher.Constraint("Coincident", 7, 2, 8, 1),
    Sketcher.Constraint("Coincident", 8, 2, 9, 1),
    Sketcher.Constraint("Coincident", 9, 2, 0, 1),
    Sketcher.Constraint("Coincident", 10, 2, 11, 1),
    Sketcher.Constraint("Coincident", 11, 2, 12, 1),
    Sketcher.Constraint("Coincident", 12, 2, 10, 1),
    Sketcher.Constraint("Coincident", 13, 2, 14, 1),
    Sketcher.Constraint("Coincident", 14, 2, 15, 1),
    Sketcher.Constraint("Coincident", 15, 2, 16, 2),
    Sketcher.Constraint("Coincident", 19, 1, 20, 1),
    Sketcher.Constraint("Coincident", 20, 2, 21, 2),
    Sketcher.Constraint("Coincident", 24, 1, 25, 1),
    Sketcher.Constraint("Coincident", 25, 2, 26, 1),
    Sketcher.Constraint("Coincident", 26, 2, 13, 1),
    Sketcher.Constraint("Coincident", 27, 2, 28, 1),
    Sketcher.Constraint("Coincident", 28, 2, 29, 1),
    Sketcher.Constraint("Coincident", 29, 2, 30, 1),
    Sketcher.Constraint("Coincident", 30, 2, 31, 1),
    Sketcher.Constraint("Coincident", 31, 2, 32, 1),
    Sketcher.Constraint("Coincident", 32, 2, 27, 1),
    Sketcher.Constraint("Horizontal", 0),
    Sketcher.Constraint("Horizontal", 2),
    Sketcher.Constraint("Vertical", 3),
    Sketcher.Constraint("Horizontal", 4),
    Sketcher.Constraint("Vertical", 5),
    Sketcher.Constraint("Horizontal", 6),
    Sketcher.Constraint("Vertical", 7),
    Sketcher.Constraint("Horizontal", 8),
    Sketcher.Constraint("Vertical", 9),
    Sketcher.Constraint("Horizontal", 10),
    Sketcher.Constraint("Vertical", 12),
    Sketcher.Constraint("Vertical", 13),
    Sketcher.Constraint("Horizontal", 14),
    Sketcher.Constraint("Horizontal", 26),
    Sketcher.Constraint("Horizontal", 27),
    Sketcher.Constraint("Horizontal", 29),
    Sketcher.Constraint("Vertical", 30),
    Sketcher.Constraint("Horizontal", 31),
    Sketcher.Constraint("Vertical", 32),
    Sketcher.Constraint("DistanceY", 32, 1, 32, 2, Q("1.5 in")),
    Sketcher.Constraint("DistanceY", 7, 2, -1, 1, Q("2 in")),
    Sketcher.Constraint("DistanceY", 10, 2, -1, 1, Q("2 in")),
    Sketcher.Constraint("DistanceY", 13, 2, -1, 1, Q("1 in")),
    Sketcher.Constraint("DistanceY", 27, 2, -1, 1, Q("1 in")),
    Sketcher.Constraint("DistanceY", 3, 2, -1, 1, Q("2.5 in")),
    Sketcher.Constraint("DistanceX", 9, 2, 13, 2, Q("1.25 in")),
    Sketcher.Constraint("DistanceX", 0, 2, 0, 1, Q("0.694531 mm")),
    Sketcher.Constraint("DistanceX", 4, 1, 4, 2, Q("3.419231 mm")),
    Sketcher.Constraint("DistanceX", 10, 2, 10, 1, Q("11.356731 mm")),
    Sketcher.Constraint("DistanceX", 14, 2, 14, 1, Q("15.630769 mm")),
    Sketcher.Constraint("DistanceX", 27, 2, 27, 1, Q("7.044531 mm")),
    Sketcher.Constraint("DistanceX", 29, 1, 29, 2, Q("5.861538 mm")),
    Sketcher.Constraint("DistanceX", 31, 1, 31, 2, Q("3.419231 mm")),
    Sketcher.Constraint("DistanceX", 2, 2, 0, 2, Q("2.7247 mm")),
    Sketcher.Constraint("DistanceX", 11, 2, 0, 2, Q("2.7247 mm")),
    Sketcher.Constraint("Distance", 15, Q("19.446659 mm")),
    Sketcher.Constraint("DistanceX", 2, 1, 2, 2, Q("18.073077 mm")),
    Sketcher.Constraint("DistanceX", 6, 1, 6, 2, Q("4.396154 mm")),
    Sketcher.Constraint("DistanceX", 26, 1, 26, 2, Q("12.959495 mm")),
    Sketcher.Constraint("DistanceY", 3, 2, 3, 1, Q("8.792308 mm")),
    Sketcher.Constraint("DistanceY", 5, 1, 5, 2, Q("8.792308 mm")),
    Sketcher.Constraint("DistanceY", 9, 1, 9, 2, Q("26.376923 mm")),
    Sketcher.Constraint("DistanceY", 12, 2, 12, 1, Q("16.546635 mm")),
    Sketcher.Constraint("DistanceY", 13, 1, 13, 2, Q("3.907692 mm")),
    Sketcher.Constraint("DistanceY", 30, 2, 30, 1, Q("34.192308 mm")),
    Sketcher.Constraint("DistanceX", 25, 2, 27, 2, Q("26.430349 mm")),
])
pad2 = body.newObject("PartDesign::Pad", "Pad001")
pad2.Profile = sketch3
pad2.Length = Q("0.01 in")

doc.recompute()
